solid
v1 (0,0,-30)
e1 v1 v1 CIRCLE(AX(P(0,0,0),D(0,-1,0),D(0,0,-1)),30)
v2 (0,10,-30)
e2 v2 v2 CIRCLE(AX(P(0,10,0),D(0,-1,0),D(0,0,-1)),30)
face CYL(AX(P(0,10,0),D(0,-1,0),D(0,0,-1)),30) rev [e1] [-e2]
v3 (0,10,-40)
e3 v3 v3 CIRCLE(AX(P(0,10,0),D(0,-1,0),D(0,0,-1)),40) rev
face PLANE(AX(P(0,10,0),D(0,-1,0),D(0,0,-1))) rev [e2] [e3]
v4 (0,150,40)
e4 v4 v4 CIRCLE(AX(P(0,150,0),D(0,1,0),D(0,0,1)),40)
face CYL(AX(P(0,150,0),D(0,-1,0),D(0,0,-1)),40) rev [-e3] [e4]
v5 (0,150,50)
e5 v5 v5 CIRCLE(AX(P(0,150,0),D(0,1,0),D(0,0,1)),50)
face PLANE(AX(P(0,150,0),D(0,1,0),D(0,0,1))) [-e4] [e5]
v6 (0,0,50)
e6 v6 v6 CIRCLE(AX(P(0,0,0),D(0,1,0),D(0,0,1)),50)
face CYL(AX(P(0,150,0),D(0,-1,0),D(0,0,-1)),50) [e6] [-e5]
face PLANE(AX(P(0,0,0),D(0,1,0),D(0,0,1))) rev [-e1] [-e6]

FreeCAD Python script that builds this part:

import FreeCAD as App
import Part
import Sketcher
Q = App.Units.Quantity

doc = App.newDocument("Part")
params = doc.addObject("Spreadsheet::Sheet", "Params")
for row, (alias, value) in enumerate([
    ("sketch1_diameter", "100 mm"),
    ("sketch1_diameter2", "80 mm"),
    ("pad1_length", "150 mm"),
    ("sketch2_diameter", "80 mm"),
    ("sketch2_diameter2", "60 mm"),
    ("pad2_length", "10 mm"),
], start=1):
    params.set(f"A{row}", alias)
    params.set(f"B{row}", "=" + value)
    params.setAlias(f"B{row}", alias)

body = doc.addObject("PartDesign::Body", "Body")

# Sketch on XZ plane
sketch1 = body.newObject("Sketcher::SketchObject", "Sketch")
sketch1.AttachmentSupport = (doc.getObject("XZ_Plane"), [""])
sketch1.MapMode = "FlatFace"
sketch1.addGeometry([
    Part.Circle(App.Vector(0, 0, 0), App.Vector(0, 0, 1), 50),
    Part.Circle(App.Vector(0, 0, 0), App.Vector(0, 0, 1), 40),
], False)
sketch1.addConstraint([
    Sketcher.Constraint("Coincident", 0, 3, -1, 1),
    Sketcher.Constraint("Coincident", 1, 3, -1, 1),
    Sketcher.Constraint("Diameter", 0, Q("100 mm")),
    Sketcher.Constraint("Diameter", 1, Q("80 mm")),
])
sketch1.setExpression("Constraints[2]", "Params.sketch1_diameter")
sketch1.setExpression("Constraints[3]", "Params.sketch1_diameter2")
pad1 = body.newObject("PartDesign::Pad", "Pad")
pad1.Profile = sketch1
pad1.setExpression("Length", "Params.pad1_length")
pad1.Reversed = True

# Sketch on XZ plane
sketch2 = body.newObject("Sketcher::SketchObject", "Sketch001")
sketch2.AttachmentSupport = (doc.getObject("XZ_Plane"), [""])
sketch2.MapMode = "FlatFace"
sketch2.addGeometry([
    Part.Circle(App.Vector(0, 0, 0), App.Vector(0, 0, 1), 40),
    Part.Circle(App.Vector(0, 0, 0), App.Vector(0, 0, 1), 30),
], False)
sketch2.addConstraint([
    Sketcher.Constraint("Coincident", 0, 3, -1, 1),
    Sketcher.Constraint("Coincident", 1, 3, -1, 1),
    Sketcher.Constraint("Diameter", 0, Q("80 mm")),
    Sketcher.Constraint("Diameter", 1, Q("60 mm")),
])
sketch2.setExpression("Constraints[2]", "Params.sketch2_diameter")
sketch2.setExpression("Constraints[3]", "Params.sketch2_diameter2")
pad2 = body.newObject("PartDesign::Pad", "Pad001")
pad2.Profile = sketch2
pad2.setExpression("Length", "Params.pad2_length")
pad2.Reversed = True

doc.recompute()
